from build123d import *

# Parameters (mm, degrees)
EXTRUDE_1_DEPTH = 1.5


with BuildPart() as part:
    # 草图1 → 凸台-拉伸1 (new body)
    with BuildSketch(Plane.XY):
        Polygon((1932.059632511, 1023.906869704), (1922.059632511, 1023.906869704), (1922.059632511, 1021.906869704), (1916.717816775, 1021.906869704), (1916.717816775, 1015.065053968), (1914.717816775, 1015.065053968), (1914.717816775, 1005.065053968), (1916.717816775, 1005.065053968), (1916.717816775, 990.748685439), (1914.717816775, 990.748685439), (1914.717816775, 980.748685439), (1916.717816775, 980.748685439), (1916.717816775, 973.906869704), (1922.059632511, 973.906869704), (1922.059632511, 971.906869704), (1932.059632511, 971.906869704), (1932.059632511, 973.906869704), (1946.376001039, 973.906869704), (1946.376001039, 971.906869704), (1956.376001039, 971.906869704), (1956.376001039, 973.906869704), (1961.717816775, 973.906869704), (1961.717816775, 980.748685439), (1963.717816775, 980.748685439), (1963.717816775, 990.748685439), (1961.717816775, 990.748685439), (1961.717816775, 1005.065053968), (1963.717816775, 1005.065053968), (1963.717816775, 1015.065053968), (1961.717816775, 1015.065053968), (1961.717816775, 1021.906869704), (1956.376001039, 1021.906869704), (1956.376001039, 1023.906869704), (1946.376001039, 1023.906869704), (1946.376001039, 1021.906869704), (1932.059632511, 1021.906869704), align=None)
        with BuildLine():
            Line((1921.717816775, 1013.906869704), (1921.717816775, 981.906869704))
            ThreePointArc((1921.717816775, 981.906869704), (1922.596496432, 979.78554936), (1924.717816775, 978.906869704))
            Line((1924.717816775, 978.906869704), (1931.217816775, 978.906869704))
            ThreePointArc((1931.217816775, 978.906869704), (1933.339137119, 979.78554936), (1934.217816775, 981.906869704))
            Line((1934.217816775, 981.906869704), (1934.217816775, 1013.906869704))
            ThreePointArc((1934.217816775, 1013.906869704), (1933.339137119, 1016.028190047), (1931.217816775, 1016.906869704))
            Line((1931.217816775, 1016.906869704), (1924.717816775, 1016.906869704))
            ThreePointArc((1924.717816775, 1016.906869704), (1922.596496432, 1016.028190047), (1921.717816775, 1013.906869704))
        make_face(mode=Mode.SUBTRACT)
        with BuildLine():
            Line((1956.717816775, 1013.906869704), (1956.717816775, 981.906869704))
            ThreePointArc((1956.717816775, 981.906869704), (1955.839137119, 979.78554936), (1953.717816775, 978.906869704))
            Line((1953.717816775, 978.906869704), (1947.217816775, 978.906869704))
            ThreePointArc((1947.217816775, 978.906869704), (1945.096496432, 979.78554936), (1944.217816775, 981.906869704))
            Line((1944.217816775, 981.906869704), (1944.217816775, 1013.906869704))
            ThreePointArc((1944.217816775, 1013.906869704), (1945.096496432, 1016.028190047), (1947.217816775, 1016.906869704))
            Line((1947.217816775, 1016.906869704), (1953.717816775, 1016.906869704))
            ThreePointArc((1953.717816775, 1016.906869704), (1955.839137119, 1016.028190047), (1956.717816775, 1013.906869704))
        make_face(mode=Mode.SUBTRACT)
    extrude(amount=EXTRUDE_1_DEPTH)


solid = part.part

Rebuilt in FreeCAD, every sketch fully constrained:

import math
import FreeCAD as App
import Part
import Sketcher
from FreeCAD import Vector

doc = App.newDocument("Part")
body = doc.addObject("PartDesign::Body", "Body")

# Sketch on XY plane
sketch1 = body.newObject("Sketcher::SketchObject", "Sketch")
sketch1.AttachmentSupport = (doc.getObject("XY_Plane"), [""])
sketch1.MapMode = "FlatFace"
sketch1.addGeometry([
    Part.LineSegment(Vector(1932.1, 1023.9, 0), Vector(1922.1, 1023.9, 0)),  # 0
    Part.LineSegment(Vector(1922.1, 1023.9, 0), Vector(1922.1, 1021.9, 0)),  # 1
    Part.LineSegment(Vector(1922.1, 1021.9, 0), Vector(1916.7, 1021.9, 0)),  # 2
    Part.LineSegment(Vector(1916.7, 1021.9, 0), Vector(1916.7, 1015.1, 0)),  # 3
    Part.LineSegment(Vector(1916.7, 1015.1, 0), Vector(1914.7, 1015.1, 0)),  # 4
    Part.LineSegment(Vector(1914.7, 1015.1, 0), Vector(1914.7, 1005.1, 0)),  # 5
    Part.LineSegment(Vector(1914.7, 1005.1, 0), Vector(1916.7, 1005.1, 0)),  # 6
    Part.LineSegment(Vector(1916.7, 1005.1, 0), Vector(1916.7, 990.7, 0)),  # 7
    Part.LineSegment(Vector(1916.7, 990.7, 0), Vector(1914.7, 990.7, 0)),  # 8
    Part.LineSegment(Vector(1914.7, 990.7, 0), Vector(1914.7, 980.7, 0)),  # 9
    Part.LineSegment(Vector(1914.7, 980.7, 0), Vector(1916.7, 980.7, 0)),  # 10
    Part.LineSegment(Vector(1916.7, 980.7, 0), Vector(1916.7, 973.9, 0)),  # 11
    Part.LineSegment(Vector(1916.7, 973.9, 0), Vector(1922.1, 973.9, 0)),  # 12
    Part.LineSegment(Vector(1922.1, 973.9, 0), Vector(1922.1, 971.9, 0)),  # 13
    Part.LineSegment(Vector(1922.1, 971.9, 0), Vector(1932.1, 971.9, 0)),  # 14
    Part.LineSegment(Vector(1932.1, 971.9, 0), Vector(1932.1, 973.9, 0)),  # 15
    Part.LineSegment(Vector(1932.1, 973.9, 0), Vector(1946.4, 973.9, 0)),  # 16
    Part.LineSegment(Vector(1946.4, 973.9, 0), Vector(1946.4, 971.9, 0)),  # 17
    Part.LineSegment(Vector(1946.4, 971.9, 0), Vector(1956.4, 971.9, 0)),  # 18
    Part.LineSegment(Vector(1956.4, 971.9, 0), Vector(1956.4, 973.9, 0)),  # 19
    Part.LineSegment(Vector(1956.4, 973.9, 0), Vector(1961.7, 973.9, 0)),  # 20
    Part.LineSegment(Vector(1961.7, 973.9, 0), Vector(1961.7, 980.7, 0)),  # 21
    Part.LineSegment(Vector(1961.7, 980.7, 0), Vector(1963.7, 980.7, 0)),  # 22
    Part.LineSegment(Vector(1963.7, 980.7, 0), Vector(1963.7, 990.7, 0)),  # 23
    Part.LineSegment(Vector(1963.7, 990.7, 0), Vector(1961.7, 990.7, 0)),  # 24
    Part.LineSegment(Vector(1961.7, 990.7, 0), Vector(1961.7, 1005.1, 0)),  # 25
    Part.LineSegment(Vector(1961.7, 1005.1, 0), Vector(1963.7, 1005.1, 0)),  # 26
    Part.LineSegment(Vector(1963.7, 1005.1, 0), Vector(1963.7, 1015.1, 0)),  # 27
    Part.LineSegment(Vector(1963.7, 1015.1, 0), Vector(1961.7, 1015.1, 0)),  # 28
    Part.LineSegment(Vector(1961.7, 1015.1, 0), Vector(1961.7, 1021.9, 0)),  # 29
    Part.LineSegment(Vector(1961.7, 1021.9, 0), Vector(1956.4, 1021.9, 0)),  # 30
    Part.LineSegment(Vector(1956.4, 1021.9, 0), Vector(1956.4, 1023.9, 0)),  # 31
    Part.LineSegment(Vector(1956.4, 1023.9, 0), Vector(1946.4, 1023.9, 0)),  # 32
    Part.LineSegment(Vector(1946.4, 1023.9, 0), Vector(1946.4, 1021.9, 0)),  # 33
    Part.LineSegment(Vector(1946.4, 1021.9, 0), Vector(1932.1, 1021.9, 0)),  # 34
    Part.LineSegment(Vector(1932.1, 1021.9, 0), Vector(1932.1, 1023.9, 0)),  # 35
    Part.LineSegment(Vector(1921.7, 981.9, 0), Vector(1921.7, 1013.9, 0)),  # 36
    Part.ArcOfCircle(Part.Circle(Vector(1924.7, 1013.9, 0), Vector(0, 0, 1), 3), math.radians(90), math.radians(180)),  # 37
    Part.LineSegment(Vector(1924.7, 1016.9, 0), Vector(1931.2, 1016.9, 0)),  # 38
    Part.ArcOfCircle(Part.Circle(Vector(1931.2, 1013.9, 0), Vector(0, 0, 1), 3), math.radians(0), math.radians(90)),  # 39
    Part.LineSegment(Vector(1934.2, 1013.9, 0), Vector(1934.2, 981.9, 0)),  # 40
    Part.ArcOfCircle(Part.Circle(Vector(1931.2, 981.9, 0), Vector(0, 0, 1), 3), math.radians(-90), math.radians(0)),  # 41
    Part.LineSegment(Vector(1931.2, 978.9, 0), Vector(1924.7, 978.9, 0)),  # 42
    Part.ArcOfCircle(Part.Circle(Vector(1924.7, 981.9, 0), Vector(0, 0, 1), 3), math.radians(180), math.radians(270)),  # 43
    Part.ArcOfCircle(Part.Circle(Vector(1953.7, 1013.9, 0), Vector(0, 0, 1), 3), math.radians(0), math.radians(90)),  # 44
    Part.LineSegment(Vector(1956.7, 1013.9, 0), Vector(1956.7, 981.9, 0)),  # 45
    Part.ArcOfCircle(Part.Circle(Vector(1953.7, 981.9, 0), Vector(0, 0, 1), 3), math.radians(-90), math.radians(0)),  # 46
    Part.LineSegment(Vector(1953.7, 978.9, 0), Vector(1947.2, 978.9, 0)),  # 47
    Part.ArcOfCircle(Part.Circle(Vector(1947.2, 981.9, 0), Vector(0, 0, 1), 3), math.radians(180), math.radians(270)),  # 48
    Part.LineSegment(Vector(1944.2, 981.9, 0), Vector(1944.2, 1013.9, 0)),  # 49
    Part.ArcOfCircle(Part.Circle(Vector(1947.2, 1013.9, 0), Vector(0, 0, 1), 3), math.radians(90), math.radians(180)),  # 50
    Part.LineSegment(Vector(1947.2, 1016.9, 0), Vector(1953.7, 1016.9, 0)),  # 51
], False)
sketch1.addConstraint([
    Sketcher.Constraint("Coincident", 0, 2, 1, 1),
    Sketcher.Constraint("Coincident", 1, 2, 2, 1),
    Sketcher.Constraint("Coincident", 2, 2, 3, 1),
    Sketcher.Constraint("Coincident", 3, 2, 4, 1),
    Sketcher.Constraint("Coincident", 4, 2, 5, 1),
    Sketcher.Constraint("Coincident", 5, 2, 6, 1),
    Sketcher.Constraint("Coincident", 6, 2, 7, 1),
    Sketcher.Constraint("Coincident", 7, 2, 8, 1),
    Sketcher.Constraint("Coincident", 8, 2, 9, 1),
    Sketcher.Constraint("Coincident", 9, 2, 10, 1),
    Sketcher.Constraint("Coincident", 10, 2, 11, 1),
    Sketcher.Constraint("Coincident", 11, 2, 12, 1),
    Sketcher.Constraint("Coincident", 12, 2, 13, 1),
    Sketcher.Constraint("Coincident", 13, 2, 14, 1),
    Sketcher.Constraint("Coincident", 14, 2, 15, 1),
    Sketcher.Constraint("Coincident", 15, 2, 16, 1),
    Sketcher.Constraint("Coincident", 16, 2, 17, 1),
    Sketcher.Constraint("Coincident", 17, 2, 18, 1),
    Sketcher.Constraint("Coincident", 18, 2, 19, 1),
    Sketcher.Constraint("Coincident", 19, 2, 20, 1),
    Sketcher.Constraint("Coincident", 20, 2, 21, 1),
    Sketcher.Constraint("Coincident", 21, 2, 22, 1),
    Sketcher.Constraint("Coincident", 22, 2, 23, 1),
    Sketcher.Constraint("Coincident", 23, 2, 24, 1),
    Sketcher.Constraint("Coincident", 24, 2, 25, 1),
    Sketcher.Constraint("Coincident", 25, 2, 26, 1),
    Sketcher.Constraint("Coincident", 26, 2, 27, 1),
    Sketcher.Constraint("Coincident", 27, 2, 28, 1),
    Sketcher.Constraint("Coincident", 28, 2, 29, 1),
    Sketcher.Constraint("Coincident", 29, 2, 30, 1),
    Sketcher.Constraint("Coincident", 30, 2, 31, 1),
    Sketcher.Constraint("Coincident", 31, 2, 32, 1),
    Sketcher.Constraint("Coincident", 32, 2, 33, 1),
    Sketcher.Constraint("Coincident", 33, 2, 34, 1),
    Sketcher.Constraint("Coincident", 34, 2, 35, 1),
    Sketcher.Constraint("Coincident", 35, 2, 0, 1),
    Sketcher.Constraint("Tangent", 36, 2, 37, 2),
    Sketcher.Constraint("Tangent", 37, 1, 38, 1),
    Sketcher.Constraint("Tangent", 38, 2, 39, 2),
    Sketcher.Constraint("Tangent", 39, 1, 40, 1),
    Sketcher.Constraint("Tangent", 40, 2, 41, 2),
    Sketcher.Constraint("Tangent", 41, 1, 42, 1),
    Sketcher.Constraint("Tangent", 42, 2, 43, 2),
    Sketcher.Constraint("Tangent", 43, 1, 36, 1),
    Sketcher.Constraint("Tangent", 44, 1, 45, 1),
    Sketcher.Constraint("Tangent", 45, 2, 46, 2),
    Sketcher.Constraint("Tangent", 46, 1, 47, 1),
    Sketcher.Constraint("Tangent", 47, 2, 48, 2),
    Sketcher.Constraint("Tangent", 48, 1, 49, 1),
    Sketcher.Constraint("Tangent", 49, 2, 50, 2),
    Sketcher.Constraint("Tangent", 50, 1, 51, 1),
    Sketcher.Constraint("Tangent", 51, 2, 44, 2),
    Sketcher.Constraint("Horizontal", 0),
    Sketcher.Constraint("Vertical", 1),
    Sketcher.Constraint("Horizontal", 2),
    Sketcher.Constraint("Vertical", 3),
    Sketcher.Constraint("Horizontal", 4),
    Sketcher.Constraint("Vertical", 5),
    Sketcher.Constraint("Horizontal", 6),
    Sketcher.Constraint("Vertical", 7),
    Sketcher.Constraint("Horizontal", 8),
    Sketcher.Constraint("Vertical", 9),
    Sketcher.Constraint("Horizontal", 10),
    Sketcher.Constraint("Vertical", 11),
    Sketcher.Constraint("Horizontal", 12),
    Sketcher.Constraint("Vertical", 13),
    Sketcher.Constraint("Horizontal", 14),
    Sketcher.Constraint("Vertical", 15),
    Sketcher.Constraint("Horizontal", 16),
    Sketcher.Constraint("Vertical", 17),
    Sketcher.Constraint("Horizontal", 18),
    Sketcher.Constraint("Vertical", 19),
    Sketcher.Constraint("Horizontal", 20),
    Sketcher.Constraint("Vertical", 21),
    Sketcher.Constraint("Horizontal", 22),
    Sketcher.Constraint("Vertical", 23),
    Sketcher.Constraint("Horizontal", 24),
    Sketcher.Constraint("Vertical", 25),
    Sketcher.Constraint("Horizontal", 26),
    Sketcher.Constraint("Vertical", 27),
    Sketcher.Constraint("Horizontal", 28),
    Sketcher.Constraint("Vertical", 29),
    Sketcher.Constraint("Horizontal", 30),
    Sketcher.Constraint("Vertical", 31),
    Sketcher.Constraint("Horizontal", 32),
    Sketcher.Constraint("Vertical", 33),
    Sketcher.Constraint("Horizontal", 34),
    Sketcher.Constraint("Vertical", 35),
    Sketcher.Constraint("Vertical", 36),
    Sketcher.Constraint("Horizontal", 38),
    Sketcher.Constraint("Vertical", 40),
    Sketcher.Constraint("Horizontal", 42),
    Sketcher.Constraint("Vertical", 45),
    Sketcher.Constraint("Horizontal", 47),
    Sketcher.Constraint("Vertical", 49),
    Sketcher.Constraint("Horizontal", 51),
    Sketcher.Constraint("Equal", 37, 39),
    Sketcher.Constraint("Equal", 39, 41),
    Sketcher.Constraint("Equal", 41, 43),
    Sketcher.Constraint("Equal", 43, 44),
    Sketcher.Constraint("Equal", 44, 46),
    Sketcher.Constraint("Equal", 46, 48),
    Sketcher.Constraint("Equal", 48, 50),
    Sketcher.Constraint("Horizontal", 39, 3, 44, 3),
    Sketcher.Constraint("Horizontal", 43, 3, 46, 3),
    Sketcher.Constraint("Horizontal", 12, 2, 15, 2),
    Sketcher.Constraint("Horizontal", 14, 2, 17, 2),
    Sketcher.Constraint("Horizontal", 16, 2, 19, 2),
    Sketcher.Constraint("Horizontal", 10, 2, 21, 2),
    Sketcher.Constraint("Horizontal", 8, 2, 23, 2),
    Sketcher.Constraint("Horizontal", 6, 2, 25, 2),
    Sketcher.Constraint("Horizontal", 4, 2, 27, 2),
    Sketcher.Constraint("Horizontal", 2, 2, 29, 2),
    Sketcher.Constraint("Horizontal", 0, 2, 31, 2),
    Sketcher.Constraint("Horizontal", 30, 2, 33, 2),
    Sketcher.Constraint("Vertical", 3, 2, 6, 2),
    Sketcher.Constraint("Vertical", 5, 2, 8, 2),
    Sketcher.Constraint("Vertical", 7, 2, 10, 2),
    Sketcher.Constraint("Vertical", 1, 2, 12, 2),
    Sketcher.Constraint("Vertical", 21, 2, 24, 2),
    Sketcher.Constraint("Vertical", 23, 2, 26, 2),
    Sketcher.Constraint("Vertical", 25, 2, 28, 2),
    Sketcher.Constraint("Vertical", 19, 2, 30, 2),
    Sketcher.Constraint("Vertical", 17, 2, 32, 2),
    Sketcher.Constraint("Vertical", 15, 2, 34, 2),
    Sketcher.Constraint("Equal", 14, 18),
    Sketcher.Constraint("Equal", 12, 20),
    Sketcher.Constraint("Equal", 10, 22),
    Sketcher.Constraint("Equal", 42, 47),
    Sketcher.Constraint("Equal", 28, 1),
    Sketcher.Constraint("Equal", 32, 5),
    Sketcher.Constraint("Equal", 34, 7),
    Sketcher.Constraint("Equal", 5, 9),
    Sketcher.Constraint("Equal", 3, 11),
    Sketcher.Constraint("Equal", 1, 13),
    Sketcher.Constraint("Radius", 37, 3.0),
    Sketcher.Constraint("DistanceX", 0, 2, 0, 1, 10.0),
    Sketcher.Constraint("DistanceX", 4, 2, 4, 1, 2.0),
    Sketcher.Constraint("DistanceY", 36, 1, 36, 2, 32.0),
    Sketcher.Constraint("DistanceX", 38, 1, 38, 2, 6.5),
    Sketcher.Constraint("DistanceX", 37, 3, 44, 3, 29.0),
    Sketcher.Constraint("DistanceY", 37, 3, 0, 2, 10.0),
    Sketcher.Constraint("DistanceX", 2, 2, 37, 3, 8.0),
    Sketcher.Constraint("DistanceY", 11, 2, 43, 3, 8.0),
    Sketcher.Constraint("DistanceX", 46, 3, 20, 2, 8.0),
    Sketcher.Constraint("DistanceX", -1, 1, 16, 2, 1946.376001),
    Sketcher.Constraint("DistanceX", 16, 1, 16, 2, 14.316369),
    Sketcher.Constraint("DistanceY", -1, 1, 37, 3, 1013.90687),
])
pad1 = body.newObject("PartDesign::Pad", "Pad")
pad1.Profile = sketch1
pad1.Length = 1.5

doc.recompute()
